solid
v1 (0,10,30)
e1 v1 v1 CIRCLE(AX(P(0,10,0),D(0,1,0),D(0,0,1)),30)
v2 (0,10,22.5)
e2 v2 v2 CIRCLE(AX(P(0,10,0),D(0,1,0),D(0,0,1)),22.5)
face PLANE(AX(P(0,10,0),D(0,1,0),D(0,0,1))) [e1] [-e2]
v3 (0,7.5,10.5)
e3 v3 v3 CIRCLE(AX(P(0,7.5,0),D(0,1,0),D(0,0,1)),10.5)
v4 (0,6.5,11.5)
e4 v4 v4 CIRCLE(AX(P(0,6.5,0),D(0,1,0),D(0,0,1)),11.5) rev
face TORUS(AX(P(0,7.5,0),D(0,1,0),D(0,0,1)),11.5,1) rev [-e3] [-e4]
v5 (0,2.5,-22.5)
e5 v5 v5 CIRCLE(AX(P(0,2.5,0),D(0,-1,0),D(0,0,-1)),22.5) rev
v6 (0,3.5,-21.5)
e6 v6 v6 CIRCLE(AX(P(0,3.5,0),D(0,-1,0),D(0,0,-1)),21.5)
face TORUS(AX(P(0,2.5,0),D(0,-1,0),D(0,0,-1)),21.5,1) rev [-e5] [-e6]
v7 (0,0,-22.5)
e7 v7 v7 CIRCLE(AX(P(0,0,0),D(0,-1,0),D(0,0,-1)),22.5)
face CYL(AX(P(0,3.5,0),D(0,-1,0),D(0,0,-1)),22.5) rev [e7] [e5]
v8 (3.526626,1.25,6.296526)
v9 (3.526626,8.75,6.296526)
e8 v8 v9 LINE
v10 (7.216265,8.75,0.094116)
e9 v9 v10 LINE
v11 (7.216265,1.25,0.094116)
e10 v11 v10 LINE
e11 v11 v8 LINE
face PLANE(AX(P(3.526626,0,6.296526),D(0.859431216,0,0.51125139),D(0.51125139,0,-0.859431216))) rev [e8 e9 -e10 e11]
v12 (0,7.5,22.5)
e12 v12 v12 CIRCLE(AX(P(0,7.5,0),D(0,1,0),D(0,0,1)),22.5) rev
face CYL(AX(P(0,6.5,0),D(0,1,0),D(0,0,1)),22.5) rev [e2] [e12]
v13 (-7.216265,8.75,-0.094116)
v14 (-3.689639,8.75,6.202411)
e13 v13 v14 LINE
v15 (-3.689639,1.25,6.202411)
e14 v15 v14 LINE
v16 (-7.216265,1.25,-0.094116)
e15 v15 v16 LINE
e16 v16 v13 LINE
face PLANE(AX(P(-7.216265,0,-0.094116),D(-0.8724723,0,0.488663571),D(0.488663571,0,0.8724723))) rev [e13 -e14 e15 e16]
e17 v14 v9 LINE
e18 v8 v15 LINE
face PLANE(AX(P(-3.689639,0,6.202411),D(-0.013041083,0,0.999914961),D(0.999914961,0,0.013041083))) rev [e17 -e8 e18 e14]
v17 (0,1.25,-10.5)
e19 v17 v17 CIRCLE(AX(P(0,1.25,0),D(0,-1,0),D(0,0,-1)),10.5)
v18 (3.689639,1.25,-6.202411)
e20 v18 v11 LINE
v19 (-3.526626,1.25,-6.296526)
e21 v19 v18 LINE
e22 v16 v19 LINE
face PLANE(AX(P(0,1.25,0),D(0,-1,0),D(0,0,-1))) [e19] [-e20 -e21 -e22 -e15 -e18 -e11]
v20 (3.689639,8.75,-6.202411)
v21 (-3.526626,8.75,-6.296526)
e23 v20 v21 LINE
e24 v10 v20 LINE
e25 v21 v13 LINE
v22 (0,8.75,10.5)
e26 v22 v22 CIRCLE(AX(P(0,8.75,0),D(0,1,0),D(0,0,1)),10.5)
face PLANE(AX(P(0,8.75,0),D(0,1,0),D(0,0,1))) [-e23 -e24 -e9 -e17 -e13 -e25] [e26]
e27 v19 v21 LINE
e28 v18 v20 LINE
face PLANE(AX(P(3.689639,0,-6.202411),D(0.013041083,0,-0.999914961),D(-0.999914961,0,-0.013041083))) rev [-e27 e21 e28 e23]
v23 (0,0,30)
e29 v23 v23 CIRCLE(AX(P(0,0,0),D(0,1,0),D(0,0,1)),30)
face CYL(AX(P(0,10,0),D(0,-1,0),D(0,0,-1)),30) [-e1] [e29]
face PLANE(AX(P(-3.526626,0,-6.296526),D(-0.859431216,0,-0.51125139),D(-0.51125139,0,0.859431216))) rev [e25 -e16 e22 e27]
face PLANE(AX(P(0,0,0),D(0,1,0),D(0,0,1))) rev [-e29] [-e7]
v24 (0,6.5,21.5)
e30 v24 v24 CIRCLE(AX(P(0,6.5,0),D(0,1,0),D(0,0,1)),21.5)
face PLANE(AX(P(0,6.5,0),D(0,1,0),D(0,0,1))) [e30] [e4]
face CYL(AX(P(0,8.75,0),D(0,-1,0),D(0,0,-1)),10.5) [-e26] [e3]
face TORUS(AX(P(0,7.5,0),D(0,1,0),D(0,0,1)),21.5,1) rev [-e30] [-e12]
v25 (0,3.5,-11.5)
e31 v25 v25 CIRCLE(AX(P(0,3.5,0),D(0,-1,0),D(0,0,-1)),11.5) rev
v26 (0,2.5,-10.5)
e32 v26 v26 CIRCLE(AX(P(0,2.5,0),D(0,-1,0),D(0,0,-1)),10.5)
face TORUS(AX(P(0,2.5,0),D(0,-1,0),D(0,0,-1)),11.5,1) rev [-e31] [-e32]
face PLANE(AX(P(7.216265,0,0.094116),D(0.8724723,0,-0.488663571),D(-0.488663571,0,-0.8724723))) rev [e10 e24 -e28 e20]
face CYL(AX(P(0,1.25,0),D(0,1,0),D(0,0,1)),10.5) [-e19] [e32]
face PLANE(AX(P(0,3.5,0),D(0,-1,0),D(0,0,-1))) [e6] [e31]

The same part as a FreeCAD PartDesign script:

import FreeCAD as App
import Part
import Sketcher
from FreeCAD import Vector
Q = App.Units.Quantity


def edges_at(feature, points):
    """Names of the edges that pass closest to the given points."""
    edges = feature.Shape.Edges
    near = lambda p: min(range(len(edges)), key=lambda i: edges[i].distToShape(Part.Vertex(*p))[0])
    return sorted({f"Edge{near(p) + 1}" for p in points})


def add_polygon(sketch, points):
    """Adds a closed chain of lines whose ends are joined by coincident constraints."""
    first, n = sketch.GeometryCount, len(points)
    for a, b in zip(points, points[1:] + points[:1]):
        sketch.addGeometry(Part.LineSegment(App.Vector(*a, 0), App.Vector(*b, 0)), False)
    for i in range(n):
        sketch.addConstraint(Sketcher.Constraint("Coincident", first + i, 2, first + (i + 1) % n, 1))

doc = App.newDocument("Part")
params = doc.addObject("Spreadsheet::Sheet", "Params")
for row, (alias, value) in enumerate([
    ("sketch1_diameter", "60 mm"),
    ("pad1_length", "10 mm"),
    ("sketch2_diameter", "45 mm"),
    ("pocket1_length", "3.5 mm"),
    ("sketch3_diameter", "45 mm"),
    ("pocket2_length", "3.5 mm"),
    ("sketch4_diameter", "21 mm"),
    ("pad2_length", "2.25 mm"),
    ("sketch5_diameter", "21 mm"),
    ("pad3_length", "2.25 mm"),
    ("fillet_radius", "1 mm"),
    ("fillet2_radius", "1 mm"),
], start=1):
    params.set(f"A{row}", alias)
    params.set(f"B{row}", "=" + value)
    params.setAlias(f"B{row}", alias)

body = doc.addObject("PartDesign::Body", "Body")

# Sketch on XZ plane
sketch1 = body.newObject("Sketcher::SketchObject", "Sketch")
sketch1.AttachmentSupport = (doc.getObject("XZ_Plane"), [""])
sketch1.MapMode = "FlatFace"
sketch1.addGeometry(Part.Circle(Vector(0, 0, 0), Vector(0, 0, 1), 30), False)
sketch1.addConstraint([
    Sketcher.Constraint("Coincident", 0, 3, -1, 1),
    Sketcher.Constraint("Diameter", 0, Q("60 mm")),
])
sketch1.setExpression("Constraints[1]", "Params.sketch1_diameter")
pad1 = body.newObject("PartDesign::Pad", "Pad")
pad1.Profile = sketch1
pad1.setExpression("Length", "Params.pad1_length")
pad1.Reversed = True

# Sketch on XZ plane
sketch2 = body.newObject("Sketcher::SketchObject", "Sketch001")
sketch2.AttachmentSupport = (doc.getObject("XZ_Plane"), [""])
sketch2.MapMode = "FlatFace"
sketch2.AttachmentOffset = App.Placement(Vector(0, 0, -10), App.Rotation())
sketch2.addGeometry(Part.Circle(Vector(0, 0, 0), Vector(0, 0, 1), 22.5), False)
sketch2.addConstraint([
    Sketcher.Constraint("Coincident", 0, 3, -1, 1),
    Sketcher.Constraint("Diameter", 0, Q("45 mm")),
])
sketch2.setExpression("Constraints[1]", "Params.sketch2_diameter")
pocket1 = body.newObject("PartDesign::Pocket", "Pocket")
pocket1.Profile = sketch2
pocket1.setExpression("Length", "Params.pocket1_length")
pocket1.Reversed = True

# Sketch on XZ plane
sketch3 = body.newObject("Sketcher::SketchObject", "Sketch002")
sketch3.AttachmentSupport = (doc.getObject("XZ_Plane"), [""])
sketch3.MapMode = "FlatFace"
sketch3.AttachmentOffset = App.Placement(Vector(0, 0, -3.5), App.Rotation())
sketch3.addGeometry(Part.Circle(Vector(0, 0, 0), Vector(0, 0, 1), 22.5), False)
sketch3.addConstraint([
    Sketcher.Constraint("Coincident", 0, 3, -1, 1),
    Sketcher.Constraint("Diameter", 0, Q("45 mm")),
])
sketch3.setExpression("Constraints[1]", "Params.sketch3_diameter")
pocket2 = body.newObject("PartDesign::Pocket", "Pocket001")
pocket2.Profile = sketch3
pocket2.setExpression("Length", "Params.pocket2_length")
pocket2.Reversed = True

# Sketch on XZ plane
sketch4 = body.newObject("Sketcher::SketchObject", "Sketch003")
sketch4.AttachmentSupport = (doc.getObject("XZ_Plane"), [""])
sketch4.MapMode = "FlatFace"
sketch4.AttachmentOffset = App.Placement(Vector(0, 0, -6.5), App.Rotation())
sketch4.addGeometry(Part.Circle(Vector(0, 0, 0), Vector(0, 0, 1), 10.5), False)
sketch4.addConstraint([
    Sketcher.Constraint("Coincident", 0, 3, -1, 1),
    Sketcher.Constraint("Diameter", 0, Q("21 mm")),
])
sketch4.setExpression("Constraints[1]", "Params.sketch4_diameter")
pad2 = body.newObject("PartDesign::Pad", "Pad001")
pad2.Profile = sketch4
pad2.setExpression("Length", "Params.pad2_length")
pad2.Reversed = True

# Sketch on XZ plane
sketch5 = body.newObject("Sketcher::SketchObject", "Sketch004")
sketch5.AttachmentSupport = (doc.getObject("XZ_Plane"), [""])
sketch5.MapMode = "FlatFace"
sketch5.AttachmentOffset = App.Placement(Vector(0, 0, -1.25), App.Rotation())
sketch5.addGeometry(Part.Circle(Vector(0, 0, 0), Vector(0, 0, 1), 10.5), False)
sketch5.addConstraint([
    Sketcher.Constraint("Coincident", 0, 3, -1, 1),
    Sketcher.Constraint("Diameter", 0, Q("21 mm")),
])
sketch5.setExpression("Constraints[1]", "Params.sketch5_diameter")
pad3 = body.newObject("PartDesign::Pad", "Pad002")
pad3.Profile = sketch5
pad3.setExpression("Length", "Params.pad3_length")
pad3.Reversed = True

# Sketch on XZ plane
sketch6 = body.newObject("Sketcher::SketchObject", "Sketch005")
sketch6.AttachmentSupport = (doc.getObject("XZ_Plane"), [""])
sketch6.MapMode = "FlatFace"
sketch6.AttachmentOffset = App.Placement(Vector(0, 0, -6.5), App.Rotation())
add_polygon(sketch6, [(3.689639, -6.202411), (-3.526626, -6.296526), (-7.216265, -0.094116), (-3.689639, 6.202411), (3.526626, 6.296526), (7.216265, 0.094116)])  # lines 0-5
sketch6.addConstraint([
    Sketcher.Constraint("Symmetric", 0, 2, 3, 2, -1, 1),
    Sketcher.Constraint("Symmetric", 1, 2, 4, 2, -1, 1),
    Sketcher.Constraint("Symmetric", 2, 2, 5, 2, -1, 1),
    Sketcher.Constraint("Equal", 0, 1),
    Sketcher.Constraint("Equal", 1, 2),
    Sketcher.Constraint("Distance", 0, Q("7.216878 mm")),
    Sketcher.Constraint("DistanceX", 2, 2, -1, 1, Q("3.689639 mm")),
    Sketcher.Constraint("DistanceY", -1, 1, 2, 2, Q("6.202411 mm")),
    Sketcher.Constraint("DistanceX", 1, 2, 0, 2, Q("3.689639 mm")),
])
pocket3 = body.newObject("PartDesign::Pocket", "Pocket002")
pocket3.Profile = sketch6
pocket3.Type = "ThroughAll"
pocket3.Midplane = True
doc.recompute()

fillet = body.newObject("PartDesign::Fillet", "Fillet")
fillet.Base = (pocket3, edges_at(pocket3, [(0, 3.5, -22.5), (0, 6.5, -22.5)]))
fillet.setExpression("Radius", "Params.fillet_radius")
doc.recompute()

fillet2 = body.newObject("PartDesign::Fillet", "Fillet001")
fillet2.Base = (fillet, edges_at(fillet, [(0, 6.5, -10.5), (0, 3.5, -10.5)]))
fillet2.setExpression("Radius", "Params.fillet2_radius")

doc.recompute()
